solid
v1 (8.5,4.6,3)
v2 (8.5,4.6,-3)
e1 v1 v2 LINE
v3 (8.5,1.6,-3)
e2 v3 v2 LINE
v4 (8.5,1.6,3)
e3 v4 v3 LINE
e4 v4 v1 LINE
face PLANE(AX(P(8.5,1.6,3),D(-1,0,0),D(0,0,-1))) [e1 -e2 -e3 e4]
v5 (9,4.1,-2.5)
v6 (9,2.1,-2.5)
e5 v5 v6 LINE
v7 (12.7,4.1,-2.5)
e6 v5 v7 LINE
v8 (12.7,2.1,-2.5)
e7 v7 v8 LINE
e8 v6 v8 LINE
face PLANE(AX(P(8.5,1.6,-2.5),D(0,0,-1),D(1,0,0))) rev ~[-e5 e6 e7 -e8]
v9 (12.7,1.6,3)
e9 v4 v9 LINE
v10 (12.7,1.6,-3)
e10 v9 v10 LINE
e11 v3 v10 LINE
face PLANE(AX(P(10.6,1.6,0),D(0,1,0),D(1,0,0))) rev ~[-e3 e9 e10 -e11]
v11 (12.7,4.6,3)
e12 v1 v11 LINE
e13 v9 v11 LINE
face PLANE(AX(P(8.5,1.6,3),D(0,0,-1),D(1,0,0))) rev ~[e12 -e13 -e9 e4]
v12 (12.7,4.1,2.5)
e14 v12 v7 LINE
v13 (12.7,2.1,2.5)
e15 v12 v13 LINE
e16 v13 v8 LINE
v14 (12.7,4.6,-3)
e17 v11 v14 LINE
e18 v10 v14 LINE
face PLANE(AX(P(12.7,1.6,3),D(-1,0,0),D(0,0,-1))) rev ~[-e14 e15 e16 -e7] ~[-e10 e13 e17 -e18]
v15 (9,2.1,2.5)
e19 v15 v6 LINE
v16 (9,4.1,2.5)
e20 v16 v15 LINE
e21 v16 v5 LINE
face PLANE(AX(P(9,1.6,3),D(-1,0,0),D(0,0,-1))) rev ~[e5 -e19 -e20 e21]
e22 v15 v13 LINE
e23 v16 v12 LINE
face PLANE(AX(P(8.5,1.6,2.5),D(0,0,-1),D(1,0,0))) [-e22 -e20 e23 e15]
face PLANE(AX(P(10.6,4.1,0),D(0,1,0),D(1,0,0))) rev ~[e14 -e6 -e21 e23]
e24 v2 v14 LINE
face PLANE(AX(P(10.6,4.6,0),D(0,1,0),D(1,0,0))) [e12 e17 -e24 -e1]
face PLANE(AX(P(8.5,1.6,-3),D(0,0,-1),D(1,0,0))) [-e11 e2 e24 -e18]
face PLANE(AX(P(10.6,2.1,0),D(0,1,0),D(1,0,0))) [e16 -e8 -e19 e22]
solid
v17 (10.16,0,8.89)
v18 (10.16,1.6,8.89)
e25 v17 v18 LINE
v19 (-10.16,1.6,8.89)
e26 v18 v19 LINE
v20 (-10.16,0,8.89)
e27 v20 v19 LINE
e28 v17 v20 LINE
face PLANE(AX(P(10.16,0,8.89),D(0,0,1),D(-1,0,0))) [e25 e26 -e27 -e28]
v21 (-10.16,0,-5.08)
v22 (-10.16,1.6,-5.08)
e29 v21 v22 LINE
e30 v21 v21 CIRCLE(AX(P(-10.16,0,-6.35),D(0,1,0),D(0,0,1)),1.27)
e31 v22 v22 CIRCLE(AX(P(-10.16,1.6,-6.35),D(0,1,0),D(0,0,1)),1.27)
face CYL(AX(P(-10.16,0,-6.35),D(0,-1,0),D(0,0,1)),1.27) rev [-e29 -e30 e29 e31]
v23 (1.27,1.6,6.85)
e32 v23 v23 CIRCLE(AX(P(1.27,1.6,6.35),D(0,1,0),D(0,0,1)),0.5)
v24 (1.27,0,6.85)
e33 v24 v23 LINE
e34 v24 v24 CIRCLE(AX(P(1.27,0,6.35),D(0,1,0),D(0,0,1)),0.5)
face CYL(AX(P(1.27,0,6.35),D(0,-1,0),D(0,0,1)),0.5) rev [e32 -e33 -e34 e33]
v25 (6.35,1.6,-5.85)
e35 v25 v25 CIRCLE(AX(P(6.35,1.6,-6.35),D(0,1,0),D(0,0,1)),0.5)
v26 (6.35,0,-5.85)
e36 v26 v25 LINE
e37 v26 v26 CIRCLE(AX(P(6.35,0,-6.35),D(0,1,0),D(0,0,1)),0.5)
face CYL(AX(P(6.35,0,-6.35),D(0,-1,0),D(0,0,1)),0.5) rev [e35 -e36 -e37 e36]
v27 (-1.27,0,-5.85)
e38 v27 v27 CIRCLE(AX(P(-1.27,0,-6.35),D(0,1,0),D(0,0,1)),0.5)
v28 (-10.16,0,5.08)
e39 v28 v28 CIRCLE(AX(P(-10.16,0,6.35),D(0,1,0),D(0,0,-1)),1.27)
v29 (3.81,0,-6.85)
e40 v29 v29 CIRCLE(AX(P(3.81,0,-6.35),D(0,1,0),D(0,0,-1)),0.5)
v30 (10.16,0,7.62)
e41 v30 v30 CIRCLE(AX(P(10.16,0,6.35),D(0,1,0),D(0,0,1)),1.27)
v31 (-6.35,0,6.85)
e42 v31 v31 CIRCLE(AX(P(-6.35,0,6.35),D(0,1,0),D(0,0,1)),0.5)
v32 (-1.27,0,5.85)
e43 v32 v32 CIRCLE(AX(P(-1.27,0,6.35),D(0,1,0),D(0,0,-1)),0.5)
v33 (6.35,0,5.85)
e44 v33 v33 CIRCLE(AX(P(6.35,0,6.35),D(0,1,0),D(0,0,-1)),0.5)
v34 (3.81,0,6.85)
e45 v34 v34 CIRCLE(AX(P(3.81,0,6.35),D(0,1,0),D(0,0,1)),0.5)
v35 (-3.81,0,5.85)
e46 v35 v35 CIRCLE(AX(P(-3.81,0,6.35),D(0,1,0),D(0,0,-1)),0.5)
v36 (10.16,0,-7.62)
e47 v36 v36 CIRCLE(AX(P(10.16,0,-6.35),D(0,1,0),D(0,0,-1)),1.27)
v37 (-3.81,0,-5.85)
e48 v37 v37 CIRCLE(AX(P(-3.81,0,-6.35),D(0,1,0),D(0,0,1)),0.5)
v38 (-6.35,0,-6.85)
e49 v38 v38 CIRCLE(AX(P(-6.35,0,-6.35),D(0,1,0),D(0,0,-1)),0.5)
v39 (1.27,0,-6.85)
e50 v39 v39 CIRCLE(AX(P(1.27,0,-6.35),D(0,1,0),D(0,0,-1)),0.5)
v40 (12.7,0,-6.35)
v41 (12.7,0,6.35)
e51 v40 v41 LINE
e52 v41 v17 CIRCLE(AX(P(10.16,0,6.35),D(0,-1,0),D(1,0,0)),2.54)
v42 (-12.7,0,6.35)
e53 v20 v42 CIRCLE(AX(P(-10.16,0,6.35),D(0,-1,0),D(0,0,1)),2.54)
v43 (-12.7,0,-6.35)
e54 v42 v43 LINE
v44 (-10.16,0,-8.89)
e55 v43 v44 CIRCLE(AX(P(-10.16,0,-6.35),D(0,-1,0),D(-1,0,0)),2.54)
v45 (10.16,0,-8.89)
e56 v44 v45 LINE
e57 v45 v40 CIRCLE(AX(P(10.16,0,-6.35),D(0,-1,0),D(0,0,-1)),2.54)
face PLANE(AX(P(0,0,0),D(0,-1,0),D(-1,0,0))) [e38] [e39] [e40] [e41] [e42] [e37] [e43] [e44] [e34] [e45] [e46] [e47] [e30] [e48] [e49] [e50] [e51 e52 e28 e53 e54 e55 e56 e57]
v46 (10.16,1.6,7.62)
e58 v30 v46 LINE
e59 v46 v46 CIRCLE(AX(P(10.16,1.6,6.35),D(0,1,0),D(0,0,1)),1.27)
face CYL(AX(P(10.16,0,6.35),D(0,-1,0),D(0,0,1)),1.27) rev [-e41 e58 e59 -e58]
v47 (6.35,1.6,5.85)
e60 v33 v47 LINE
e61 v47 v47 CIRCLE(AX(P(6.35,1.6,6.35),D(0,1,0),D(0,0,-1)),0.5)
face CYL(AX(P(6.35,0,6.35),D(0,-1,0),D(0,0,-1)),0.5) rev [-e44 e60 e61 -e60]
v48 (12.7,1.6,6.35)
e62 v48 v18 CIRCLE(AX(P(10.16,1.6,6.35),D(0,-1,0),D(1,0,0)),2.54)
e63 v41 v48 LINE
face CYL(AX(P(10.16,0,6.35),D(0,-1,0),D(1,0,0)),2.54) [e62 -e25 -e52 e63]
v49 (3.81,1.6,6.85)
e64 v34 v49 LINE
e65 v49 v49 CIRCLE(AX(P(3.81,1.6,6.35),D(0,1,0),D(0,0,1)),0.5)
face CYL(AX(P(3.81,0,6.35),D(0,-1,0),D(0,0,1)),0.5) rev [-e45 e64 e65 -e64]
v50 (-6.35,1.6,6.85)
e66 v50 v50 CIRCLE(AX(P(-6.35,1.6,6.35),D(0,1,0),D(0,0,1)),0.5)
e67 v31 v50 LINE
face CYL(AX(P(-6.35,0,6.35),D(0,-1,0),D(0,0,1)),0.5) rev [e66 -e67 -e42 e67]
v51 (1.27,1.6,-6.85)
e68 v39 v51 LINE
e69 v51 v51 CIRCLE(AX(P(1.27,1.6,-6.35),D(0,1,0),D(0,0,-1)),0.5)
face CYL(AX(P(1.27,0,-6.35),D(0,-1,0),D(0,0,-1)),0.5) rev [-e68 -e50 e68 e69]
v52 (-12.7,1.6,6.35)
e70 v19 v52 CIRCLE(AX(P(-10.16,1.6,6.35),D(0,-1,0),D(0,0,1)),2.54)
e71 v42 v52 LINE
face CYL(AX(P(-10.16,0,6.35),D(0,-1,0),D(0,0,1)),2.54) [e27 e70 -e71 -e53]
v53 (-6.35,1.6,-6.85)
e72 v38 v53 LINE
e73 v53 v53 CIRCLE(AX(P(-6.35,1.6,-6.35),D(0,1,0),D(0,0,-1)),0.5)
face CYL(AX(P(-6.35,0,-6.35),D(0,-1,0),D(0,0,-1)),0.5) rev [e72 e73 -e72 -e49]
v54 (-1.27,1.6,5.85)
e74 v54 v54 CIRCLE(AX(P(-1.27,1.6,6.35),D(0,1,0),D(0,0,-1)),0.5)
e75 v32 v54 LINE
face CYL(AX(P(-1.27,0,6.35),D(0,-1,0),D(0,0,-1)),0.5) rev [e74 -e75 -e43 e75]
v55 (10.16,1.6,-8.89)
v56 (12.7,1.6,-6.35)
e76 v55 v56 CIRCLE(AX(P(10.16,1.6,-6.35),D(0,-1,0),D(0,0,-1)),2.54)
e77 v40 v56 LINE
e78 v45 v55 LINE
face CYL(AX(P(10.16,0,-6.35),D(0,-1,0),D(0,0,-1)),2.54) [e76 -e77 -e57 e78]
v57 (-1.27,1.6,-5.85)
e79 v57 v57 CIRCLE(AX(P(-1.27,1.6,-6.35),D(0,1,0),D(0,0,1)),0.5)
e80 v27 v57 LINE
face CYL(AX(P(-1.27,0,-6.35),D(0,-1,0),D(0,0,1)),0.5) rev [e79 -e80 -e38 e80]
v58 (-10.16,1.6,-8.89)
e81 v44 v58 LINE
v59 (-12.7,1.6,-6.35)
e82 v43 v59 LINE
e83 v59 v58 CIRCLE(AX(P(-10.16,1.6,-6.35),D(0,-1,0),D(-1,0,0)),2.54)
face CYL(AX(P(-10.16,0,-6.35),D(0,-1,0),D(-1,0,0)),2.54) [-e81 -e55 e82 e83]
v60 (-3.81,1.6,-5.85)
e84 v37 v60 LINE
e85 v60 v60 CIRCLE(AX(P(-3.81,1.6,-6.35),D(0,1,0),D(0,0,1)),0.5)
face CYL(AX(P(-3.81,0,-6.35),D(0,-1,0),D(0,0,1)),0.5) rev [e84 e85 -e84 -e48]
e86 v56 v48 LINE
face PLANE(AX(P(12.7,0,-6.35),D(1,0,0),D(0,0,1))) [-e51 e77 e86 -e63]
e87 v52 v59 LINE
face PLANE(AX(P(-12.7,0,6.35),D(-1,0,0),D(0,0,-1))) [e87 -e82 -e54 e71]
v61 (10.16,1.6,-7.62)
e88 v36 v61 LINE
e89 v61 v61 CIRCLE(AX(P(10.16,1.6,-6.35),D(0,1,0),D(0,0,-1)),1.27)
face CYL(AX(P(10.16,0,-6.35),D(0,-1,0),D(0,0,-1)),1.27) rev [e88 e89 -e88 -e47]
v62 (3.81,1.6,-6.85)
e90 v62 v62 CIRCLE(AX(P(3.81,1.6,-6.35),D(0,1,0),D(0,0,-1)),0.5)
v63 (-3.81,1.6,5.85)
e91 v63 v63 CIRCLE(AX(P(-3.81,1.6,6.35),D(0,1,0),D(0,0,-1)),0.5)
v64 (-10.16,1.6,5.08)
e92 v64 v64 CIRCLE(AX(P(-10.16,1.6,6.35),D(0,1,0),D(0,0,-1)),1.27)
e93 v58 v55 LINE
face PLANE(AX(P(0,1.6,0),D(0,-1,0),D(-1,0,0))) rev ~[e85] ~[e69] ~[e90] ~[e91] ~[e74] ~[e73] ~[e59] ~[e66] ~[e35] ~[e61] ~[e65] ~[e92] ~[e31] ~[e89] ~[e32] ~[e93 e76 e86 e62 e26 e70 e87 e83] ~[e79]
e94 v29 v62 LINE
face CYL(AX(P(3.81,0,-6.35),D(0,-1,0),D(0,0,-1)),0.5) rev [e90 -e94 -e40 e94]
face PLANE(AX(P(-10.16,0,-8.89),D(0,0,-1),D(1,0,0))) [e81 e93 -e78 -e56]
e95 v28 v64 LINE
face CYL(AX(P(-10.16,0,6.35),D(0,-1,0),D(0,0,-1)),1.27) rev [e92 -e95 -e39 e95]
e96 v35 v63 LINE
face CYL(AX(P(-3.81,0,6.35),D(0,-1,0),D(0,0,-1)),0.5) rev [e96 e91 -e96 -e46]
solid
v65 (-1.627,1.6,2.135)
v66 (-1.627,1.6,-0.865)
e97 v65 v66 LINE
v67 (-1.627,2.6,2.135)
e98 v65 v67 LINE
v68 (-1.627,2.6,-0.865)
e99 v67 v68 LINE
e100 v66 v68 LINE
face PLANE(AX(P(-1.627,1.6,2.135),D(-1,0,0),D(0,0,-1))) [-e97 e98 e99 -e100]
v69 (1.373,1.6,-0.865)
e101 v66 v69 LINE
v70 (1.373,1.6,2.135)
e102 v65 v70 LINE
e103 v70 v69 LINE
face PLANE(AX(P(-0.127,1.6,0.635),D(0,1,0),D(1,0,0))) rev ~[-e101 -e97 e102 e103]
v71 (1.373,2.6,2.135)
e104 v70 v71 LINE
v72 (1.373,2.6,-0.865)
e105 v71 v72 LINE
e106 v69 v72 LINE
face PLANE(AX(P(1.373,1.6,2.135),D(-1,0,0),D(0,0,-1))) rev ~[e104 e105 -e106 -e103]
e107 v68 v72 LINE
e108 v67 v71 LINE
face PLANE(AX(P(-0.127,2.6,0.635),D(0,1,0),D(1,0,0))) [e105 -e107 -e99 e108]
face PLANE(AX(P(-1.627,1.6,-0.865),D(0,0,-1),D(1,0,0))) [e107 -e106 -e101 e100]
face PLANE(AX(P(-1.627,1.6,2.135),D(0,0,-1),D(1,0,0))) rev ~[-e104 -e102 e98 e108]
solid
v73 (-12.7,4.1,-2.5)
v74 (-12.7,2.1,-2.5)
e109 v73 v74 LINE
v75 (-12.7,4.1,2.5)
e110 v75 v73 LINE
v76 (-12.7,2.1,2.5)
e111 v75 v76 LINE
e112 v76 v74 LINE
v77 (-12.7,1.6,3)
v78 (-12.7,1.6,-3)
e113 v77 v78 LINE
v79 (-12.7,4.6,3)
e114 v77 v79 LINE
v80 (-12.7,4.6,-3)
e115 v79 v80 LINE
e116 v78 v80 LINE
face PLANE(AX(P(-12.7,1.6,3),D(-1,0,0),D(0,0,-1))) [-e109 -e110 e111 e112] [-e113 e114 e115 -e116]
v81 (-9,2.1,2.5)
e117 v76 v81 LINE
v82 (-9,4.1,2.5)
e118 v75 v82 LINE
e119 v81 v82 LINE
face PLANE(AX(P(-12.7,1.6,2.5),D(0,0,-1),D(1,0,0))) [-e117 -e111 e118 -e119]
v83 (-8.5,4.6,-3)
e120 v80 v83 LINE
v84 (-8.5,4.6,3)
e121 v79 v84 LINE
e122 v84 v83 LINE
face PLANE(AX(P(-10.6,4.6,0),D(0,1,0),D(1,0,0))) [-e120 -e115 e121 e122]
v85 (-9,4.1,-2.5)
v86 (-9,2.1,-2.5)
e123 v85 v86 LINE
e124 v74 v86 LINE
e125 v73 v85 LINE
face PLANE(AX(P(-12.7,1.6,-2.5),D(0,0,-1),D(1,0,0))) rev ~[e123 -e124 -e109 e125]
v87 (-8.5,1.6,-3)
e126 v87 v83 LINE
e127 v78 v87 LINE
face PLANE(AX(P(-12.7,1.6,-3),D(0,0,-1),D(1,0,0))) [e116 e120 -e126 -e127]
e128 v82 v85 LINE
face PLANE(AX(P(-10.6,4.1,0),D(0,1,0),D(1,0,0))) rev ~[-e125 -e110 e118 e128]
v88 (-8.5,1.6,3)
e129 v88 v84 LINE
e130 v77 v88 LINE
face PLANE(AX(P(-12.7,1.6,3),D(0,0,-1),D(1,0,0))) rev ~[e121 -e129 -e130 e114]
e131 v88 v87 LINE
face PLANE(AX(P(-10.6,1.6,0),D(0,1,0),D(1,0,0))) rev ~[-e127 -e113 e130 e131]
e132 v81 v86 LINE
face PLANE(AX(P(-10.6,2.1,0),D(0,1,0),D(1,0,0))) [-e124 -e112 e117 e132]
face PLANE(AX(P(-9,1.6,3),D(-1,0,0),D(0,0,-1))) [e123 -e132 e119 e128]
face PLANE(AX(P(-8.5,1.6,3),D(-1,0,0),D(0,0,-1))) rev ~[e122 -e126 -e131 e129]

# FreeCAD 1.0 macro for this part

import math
import FreeCAD as App
import Part
import Sketcher


def faces_at(feature, points):
    """Names of the faces that lie closest to the given points."""
    faces = feature.Shape.Faces
    near = lambda p: min(range(len(faces)), key=lambda i: faces[i].distToShape(Part.Vertex(*p))[0])
    return sorted({f"Face{near(p) + 1}" for p in points})

doc = App.newDocument("Part")
body = doc.addObject("PartDesign::Body", "Body")

# Sketch on XZ plane
sketch1 = body.newObject("Sketcher::SketchObject", "Sketch")
sketch1.AttachmentSupport = (doc.getObject("XZ_Plane"), [""])
sketch1.MapMode = "FlatFace"
sketch1.addGeometry([
    Part.LineSegment(App.Vector(10.2, -8.9, 0), App.Vector(-10.2, -8.9, 0)),  # 0
    Part.ArcOfCircle(Part.Circle(App.Vector(-10.2, -6.3, 0), App.Vector(0, 0, 1), 2.5), math.radians(-180), math.radians(-90)),  # 1
    Part.LineSegment(App.Vector(-12.7, -6.3, 0), App.Vector(-12.7, 6.3, 0)),  # 2
    Part.ArcOfCircle(Part.Circle(App.Vector(-10.2, 6.3, 0), App.Vector(0, 0, 1), 2.5), math.radians(90), math.radians(180)),  # 3
    Part.LineSegment(App.Vector(-10.2, 8.9, 0), App.Vector(10.2, 8.9, 0)),  # 4
    Part.ArcOfCircle(Part.Circle(App.Vector(10.2, 6.3, 0), App.Vector(0, 0, 1), 2.5), math.radians(0), math.radians(90)),  # 5
    Part.LineSegment(App.Vector(12.7, 6.3, 0), App.Vector(12.7, -6.3, 0)),  # 6
    Part.ArcOfCircle(Part.Circle(App.Vector(10.2, -6.3, 0), App.Vector(0, 0, 1), 2.5), math.radians(-90), math.radians(0)),  # 7
    Part.Circle(App.Vector(10.2, 6.3, 0), App.Vector(0, 0, 1), 1.3),  # 8
    Part.Circle(App.Vector(6.3, 6.3, 0), App.Vector(0, 0, 1), 0.5),  # 9
    Part.Circle(App.Vector(3.8, 6.3, 0), App.Vector(0, 0, 1), 0.5),  # 10
    Part.Circle(App.Vector(1.3, 6.3, 0), App.Vector(0, 0, 1), 0.5),  # 11
    Part.Circle(App.Vector(-1.3, 6.3, 0), App.Vector(0, 0, 1), 0.5),  # 12
    Part.Circle(App.Vector(-3.8, 6.3, 0), App.Vector(0, 0, 1), 0.5),  # 13
    Part.Circle(App.Vector(-6.3, 6.3, 0), App.Vector(0, 0, 1), 0.5),  # 14
    Part.Circle(App.Vector(-10.2, 6.3, 0), App.Vector(0, 0, 1), 1.3),  # 15
    Part.Circle(App.Vector(10.2, -6.3, 0), App.Vector(0, 0, 1), 1.3),  # 16
    Part.Circle(App.Vector(6.3, -6.3, 0), App.Vector(0, 0, 1), 0.5),  # 17
    Part.Circle(App.Vector(3.8, -6.3, 0), App.Vector(0, 0, 1), 0.5),  # 18
    Part.Circle(App.Vector(1.3, -6.3, 0), App.Vector(0, 0, 1), 0.5),  # 19
    Part.Circle(App.Vector(-1.3, -6.3, 0), App.Vector(0, 0, 1), 0.5),  # 20
    Part.Circle(App.Vector(-3.8, -6.3, 0), App.Vector(0, 0, 1), 0.5),  # 21
    Part.Circle(App.Vector(-6.3, -6.3, 0), App.Vector(0, 0, 1), 0.5),  # 22
    Part.Circle(App.Vector(-10.2, -6.3, 0), App.Vector(0, 0, 1), 1.3),  # 23
], False)
sketch1.addConstraint([
    Sketcher.Constraint("Tangent", 0, 2, 1, 2),
    Sketcher.Constraint("Tangent", 1, 1, 2, 1),
    Sketcher.Constraint("Tangent", 2, 2, 3, 2),
    Sketcher.Constraint("Tangent", 3, 1, 4, 1),
    Sketcher.Constraint("Tangent", 4, 2, 5, 2),
    Sketcher.Constraint("Tangent", 5, 1, 6, 1),
    Sketcher.Constraint("Tangent", 6, 2, 7, 2),
    Sketcher.Constraint("Tangent", 7, 1, 0, 1),
    Sketcher.Constraint("Horizontal", 0),
    Sketcher.Constraint("Vertical", 2),
    Sketcher.Constraint("Horizontal", 4),
    Sketcher.Constraint("Vertical", 6),
    Sketcher.Constraint("Coincident", 8, 3, 5, 3),
    Sketcher.Constraint("Coincident", 15, 3, 3, 3),
    Sketcher.Constraint("Coincident", 16, 3, 7, 3),
    Sketcher.Constraint("Coincident", 23, 3, 1, 3),
    Sketcher.Constraint("Equal", 1, 3),
    Sketcher.Constraint("Equal", 3, 5),
    Sketcher.Constraint("Equal", 5, 7),
    Sketcher.Constraint("Equal", 9, 10),
    Sketcher.Constraint("Equal", 10, 11),
    Sketcher.Constraint("Equal", 11, 12),
    Sketcher.Constraint("Equal", 12, 13),
    Sketcher.Constraint("Equal", 13, 14),
    Sketcher.Constraint("Equal", 8, 15),
    Sketcher.Constraint("Equal", 15, 16),
    Sketcher.Constraint("Equal", 14, 17),
    Sketcher.Constraint("Equal", 17, 18),
    Sketcher.Constraint("Equal", 18, 19),
    Sketcher.Constraint("Equal", 19, 20),
    Sketcher.Constraint("Equal", 20, 21),
    Sketcher.Constraint("Equal", 21, 22),
    Sketcher.Constraint("Equal", 16, 23),
    Sketcher.Constraint("Symmetric", 1, 3, 5, 3, -1, 1),
    Sketcher.Constraint("Symmetric", 14, 3, 17, 3, -1, 1),
    Sketcher.Constraint("Symmetric", 13, 3, 18, 3, -1, 1),
    Sketcher.Constraint("Symmetric", 12, 3, 19, 3, -1, 1),
    Sketcher.Constraint("Symmetric", 11, 3, 20, 3, -1, 1),
    Sketcher.Constraint("Symmetric", 10, 3, 21, 3, -1, 1),
    Sketcher.Constraint("Symmetric", 9, 3, 22, 3, -1, 1),
    Sketcher.Constraint("Symmetric", 11, 3, 12, 3, -2),
    Sketcher.Constraint("Symmetric", 10, 3, 13, 3, -2),
    Sketcher.Constraint("Symmetric", 9, 3, 14, 3, -2),
    Sketcher.Constraint("Horizontal", 8, 3, 9, 3),
    Sketcher.Constraint("Horizontal", 9, 3, 10, 3),
    Sketcher.Constraint("Horizontal", 10, 3, 11, 3),
    Sketcher.Constraint("Diameter", 9, 1.0),
    Sketcher.Constraint("Diameter", 8, 2.54),
    Sketcher.Constraint("Radius", 1, 2.54),
    Sketcher.Constraint("DistanceY", 2, 1, 2, 2, 12.7),
    Sketcher.Constraint("DistanceX", 0, 2, 0, 1, 20.32),
    Sketcher.Constraint("DistanceX", -1, 1, 9, 3, 6.35),
    Sketcher.Constraint("DistanceX", -1, 1, 10, 3, 3.81),
    Sketcher.Constraint("DistanceX", -1, 1, 11, 3, 1.27),
])
pad1 = body.newObject("PartDesign::Pad", "Pad")
pad1.Profile = sketch1
pad1.Length = 1.6
pad1.Reversed = True
body2 = doc.addObject("PartDesign::Body", "Body001")

# Sketch on XZ plane
sketch2 = body2.newObject("Sketcher::SketchObject", "Sketch001")
sketch2.AttachmentSupport = (doc.getObject("XZ_Plane001"), [""])
sketch2.MapMode = "FlatFace"
sketch2.AttachmentOffset = App.Placement(App.Vector(0, 0, -1.6), App.Rotation())
sketch2.addGeometry([
    Part.LineSegment(App.Vector(-1.6, -0.9, 0), App.Vector(-1.6, 2.1, 0)),
    Part.LineSegment(App.Vector(-1.6, 2.1, 0), App.Vector(1.4, 2.1, 0)),
    Part.LineSegment(App.Vector(1.4, 2.1, 0), App.Vector(1.4, -0.9, 0)),
    Part.LineSegment(App.Vector(1.4, -0.9, 0), App.Vector(-1.6, -0.9, 0)),
], False)
sketch2.addConstraint([
    Sketcher.Constraint("Coincident", 0, 2, 1, 1),
    Sketcher.Constraint("Coincident", 1, 2, 2, 1),
    Sketcher.Constraint("Coincident", 2, 2, 3, 1),
    Sketcher.Constraint("Coincident", 3, 2, 0, 1),
    Sketcher.Constraint("Vertical", 0),
    Sketcher.Constraint("Horizontal", 1),
    Sketcher.Constraint("Vertical", 2),
    Sketcher.Constraint("Horizontal", 3),
    Sketcher.Constraint("Equal", 3, 0),
    Sketcher.Constraint("DistanceX", 1, 1, 1, 2, 3.0),
    Sketcher.Constraint("DistanceX", 0, 2, -1, 1, 1.627),
    Sketcher.Constraint("DistanceY", -1, 1, 0, 2, 2.135),
])
pad2 = body2.newObject("PartDesign::Pad", "Pad001")
pad2.Profile = sketch2
pad2.Length = 1
pad2.Reversed = True
body3 = doc.addObject("PartDesign::Body", "Body002")

# Sketch on XZ plane
sketch3 = body3.newObject("Sketcher::SketchObject", "Sketch002")
sketch3.AttachmentSupport = (doc.getObject("XZ_Plane002"), [""])
sketch3.MapMode = "FlatFace"
sketch3.AttachmentOffset = App.Placement(App.Vector(0, 0, -1.6), App.Rotation())
sketch3.addGeometry([
    Part.LineSegment(App.Vector(8.5, -3, 0), App.Vector(8.5, 3, 0)),
    Part.LineSegment(App.Vector(8.5, 3, 0), App.Vector(12.7, 3, 0)),
    Part.LineSegment(App.Vector(12.7, 3, 0), App.Vector(12.7, -3, 0)),
    Part.LineSegment(App.Vector(12.7, -3, 0), App.Vector(8.5, -3, 0)),
], False)
sketch3.addConstraint([
    Sketcher.Constraint("Coincident", 0, 2, 1, 1),
    Sketcher.Constraint("Coincident", 1, 2, 2, 1),
    Sketcher.Constraint("Coincident", 2, 2, 3, 1),
    Sketcher.Constraint("Coincident", 3, 2, 0, 1),
    Sketcher.Constraint("Vertical", 0),
    Sketcher.Constraint("Horizontal", 1),
    Sketcher.Constraint("Vertical", 2),
    Sketcher.Constraint("Horizontal", 3),
    Sketcher.Constraint("DistanceY", 0, 1, 0, 2, 6.0),
    Sketcher.Constraint("DistanceX", 1, 1, 1, 2, 4.2),
    Sketcher.Constraint("DistanceY", -1, 1, 0, 2, 3.0),
    Sketcher.Constraint("DistanceX", -1, 1, 0, 2, 8.5),
])
pad3 = body3.newObject("PartDesign::Pad", "Pad002")
pad3.Profile = sketch3
pad3.Length = 3
pad3.Reversed = True
doc.recompute()

thickness = body3.newObject("PartDesign::Thickness", "Thickness")
thickness.Base = (pad3, faces_at(pad3, [(12.7, 3.1, 0)]))
thickness.Value = 0.5
thickness.Reversed = True
thickness.Join = "Intersection"
body4 = doc.addObject("PartDesign::Body", "Body003")

# Sketch on XZ plane
sketch4 = body4.newObject("Sketcher::SketchObject", "Sketch003")
sketch4.AttachmentSupport = (doc.getObject("XZ_Plane003"), [""])
sketch4.MapMode = "FlatFace"
sketch4.AttachmentOffset = App.Placement(App.Vector(0, 0, -1.6), App.Rotation())
sketch4.addGeometry([
    Part.LineSegment(App.Vector(-12.7, -3, 0), App.Vector(-12.7, 3, 0)),
    Part.LineSegment(App.Vector(-12.7, 3, 0), App.Vector(-8.5, 3, 0)),
    Part.LineSegment(App.Vector(-8.5, 3, 0), App.Vector(-8.5, -3, 0)),
    Part.LineSegment(App.Vector(-8.5, -3, 0), App.Vector(-12.7, -3, 0)),
], False)
sketch4.addConstraint([
    Sketcher.Constraint("Coincident", 0, 2, 1, 1),
    Sketcher.Constraint("Coincident", 1, 2, 2, 1),
    Sketcher.Constraint("Coincident", 2, 2, 3, 1),
    Sketcher.Constraint("Coincident", 3, 2, 0, 1),
    Sketcher.Constraint("Vertical", 0),
    Sketcher.Constraint("Horizontal", 1),
    Sketcher.Constraint("Vertical", 2),
    Sketcher.Constraint("Horizontal", 3),
    Sketcher.Constraint("DistanceY", 0, 1, 0, 2, 6.0),
    Sketcher.Constraint("DistanceX", 1, 1, 1, 2, 4.2),
    Sketcher.Constraint("DistanceY", -1, 1, 0, 2, 3.0),
    Sketcher.Constraint("DistanceX", 0, 2, -1, 1, 12.7),
])
pad4 = body4.newObject("PartDesign::Pad", "Pad003")
pad4.Profile = sketch4
pad4.Length = 3
pad4.Reversed = True
doc.recompute()

thickness2 = body4.newObject("PartDesign::Thickness", "Thickness001")
thickness2.Base = (pad4, faces_at(pad4, [(-12.7, 3.1, 0)]))
thickness2.Value = 0.5
thickness2.Reversed = True
thickness2.Join = "Intersection"

doc.recompute()
